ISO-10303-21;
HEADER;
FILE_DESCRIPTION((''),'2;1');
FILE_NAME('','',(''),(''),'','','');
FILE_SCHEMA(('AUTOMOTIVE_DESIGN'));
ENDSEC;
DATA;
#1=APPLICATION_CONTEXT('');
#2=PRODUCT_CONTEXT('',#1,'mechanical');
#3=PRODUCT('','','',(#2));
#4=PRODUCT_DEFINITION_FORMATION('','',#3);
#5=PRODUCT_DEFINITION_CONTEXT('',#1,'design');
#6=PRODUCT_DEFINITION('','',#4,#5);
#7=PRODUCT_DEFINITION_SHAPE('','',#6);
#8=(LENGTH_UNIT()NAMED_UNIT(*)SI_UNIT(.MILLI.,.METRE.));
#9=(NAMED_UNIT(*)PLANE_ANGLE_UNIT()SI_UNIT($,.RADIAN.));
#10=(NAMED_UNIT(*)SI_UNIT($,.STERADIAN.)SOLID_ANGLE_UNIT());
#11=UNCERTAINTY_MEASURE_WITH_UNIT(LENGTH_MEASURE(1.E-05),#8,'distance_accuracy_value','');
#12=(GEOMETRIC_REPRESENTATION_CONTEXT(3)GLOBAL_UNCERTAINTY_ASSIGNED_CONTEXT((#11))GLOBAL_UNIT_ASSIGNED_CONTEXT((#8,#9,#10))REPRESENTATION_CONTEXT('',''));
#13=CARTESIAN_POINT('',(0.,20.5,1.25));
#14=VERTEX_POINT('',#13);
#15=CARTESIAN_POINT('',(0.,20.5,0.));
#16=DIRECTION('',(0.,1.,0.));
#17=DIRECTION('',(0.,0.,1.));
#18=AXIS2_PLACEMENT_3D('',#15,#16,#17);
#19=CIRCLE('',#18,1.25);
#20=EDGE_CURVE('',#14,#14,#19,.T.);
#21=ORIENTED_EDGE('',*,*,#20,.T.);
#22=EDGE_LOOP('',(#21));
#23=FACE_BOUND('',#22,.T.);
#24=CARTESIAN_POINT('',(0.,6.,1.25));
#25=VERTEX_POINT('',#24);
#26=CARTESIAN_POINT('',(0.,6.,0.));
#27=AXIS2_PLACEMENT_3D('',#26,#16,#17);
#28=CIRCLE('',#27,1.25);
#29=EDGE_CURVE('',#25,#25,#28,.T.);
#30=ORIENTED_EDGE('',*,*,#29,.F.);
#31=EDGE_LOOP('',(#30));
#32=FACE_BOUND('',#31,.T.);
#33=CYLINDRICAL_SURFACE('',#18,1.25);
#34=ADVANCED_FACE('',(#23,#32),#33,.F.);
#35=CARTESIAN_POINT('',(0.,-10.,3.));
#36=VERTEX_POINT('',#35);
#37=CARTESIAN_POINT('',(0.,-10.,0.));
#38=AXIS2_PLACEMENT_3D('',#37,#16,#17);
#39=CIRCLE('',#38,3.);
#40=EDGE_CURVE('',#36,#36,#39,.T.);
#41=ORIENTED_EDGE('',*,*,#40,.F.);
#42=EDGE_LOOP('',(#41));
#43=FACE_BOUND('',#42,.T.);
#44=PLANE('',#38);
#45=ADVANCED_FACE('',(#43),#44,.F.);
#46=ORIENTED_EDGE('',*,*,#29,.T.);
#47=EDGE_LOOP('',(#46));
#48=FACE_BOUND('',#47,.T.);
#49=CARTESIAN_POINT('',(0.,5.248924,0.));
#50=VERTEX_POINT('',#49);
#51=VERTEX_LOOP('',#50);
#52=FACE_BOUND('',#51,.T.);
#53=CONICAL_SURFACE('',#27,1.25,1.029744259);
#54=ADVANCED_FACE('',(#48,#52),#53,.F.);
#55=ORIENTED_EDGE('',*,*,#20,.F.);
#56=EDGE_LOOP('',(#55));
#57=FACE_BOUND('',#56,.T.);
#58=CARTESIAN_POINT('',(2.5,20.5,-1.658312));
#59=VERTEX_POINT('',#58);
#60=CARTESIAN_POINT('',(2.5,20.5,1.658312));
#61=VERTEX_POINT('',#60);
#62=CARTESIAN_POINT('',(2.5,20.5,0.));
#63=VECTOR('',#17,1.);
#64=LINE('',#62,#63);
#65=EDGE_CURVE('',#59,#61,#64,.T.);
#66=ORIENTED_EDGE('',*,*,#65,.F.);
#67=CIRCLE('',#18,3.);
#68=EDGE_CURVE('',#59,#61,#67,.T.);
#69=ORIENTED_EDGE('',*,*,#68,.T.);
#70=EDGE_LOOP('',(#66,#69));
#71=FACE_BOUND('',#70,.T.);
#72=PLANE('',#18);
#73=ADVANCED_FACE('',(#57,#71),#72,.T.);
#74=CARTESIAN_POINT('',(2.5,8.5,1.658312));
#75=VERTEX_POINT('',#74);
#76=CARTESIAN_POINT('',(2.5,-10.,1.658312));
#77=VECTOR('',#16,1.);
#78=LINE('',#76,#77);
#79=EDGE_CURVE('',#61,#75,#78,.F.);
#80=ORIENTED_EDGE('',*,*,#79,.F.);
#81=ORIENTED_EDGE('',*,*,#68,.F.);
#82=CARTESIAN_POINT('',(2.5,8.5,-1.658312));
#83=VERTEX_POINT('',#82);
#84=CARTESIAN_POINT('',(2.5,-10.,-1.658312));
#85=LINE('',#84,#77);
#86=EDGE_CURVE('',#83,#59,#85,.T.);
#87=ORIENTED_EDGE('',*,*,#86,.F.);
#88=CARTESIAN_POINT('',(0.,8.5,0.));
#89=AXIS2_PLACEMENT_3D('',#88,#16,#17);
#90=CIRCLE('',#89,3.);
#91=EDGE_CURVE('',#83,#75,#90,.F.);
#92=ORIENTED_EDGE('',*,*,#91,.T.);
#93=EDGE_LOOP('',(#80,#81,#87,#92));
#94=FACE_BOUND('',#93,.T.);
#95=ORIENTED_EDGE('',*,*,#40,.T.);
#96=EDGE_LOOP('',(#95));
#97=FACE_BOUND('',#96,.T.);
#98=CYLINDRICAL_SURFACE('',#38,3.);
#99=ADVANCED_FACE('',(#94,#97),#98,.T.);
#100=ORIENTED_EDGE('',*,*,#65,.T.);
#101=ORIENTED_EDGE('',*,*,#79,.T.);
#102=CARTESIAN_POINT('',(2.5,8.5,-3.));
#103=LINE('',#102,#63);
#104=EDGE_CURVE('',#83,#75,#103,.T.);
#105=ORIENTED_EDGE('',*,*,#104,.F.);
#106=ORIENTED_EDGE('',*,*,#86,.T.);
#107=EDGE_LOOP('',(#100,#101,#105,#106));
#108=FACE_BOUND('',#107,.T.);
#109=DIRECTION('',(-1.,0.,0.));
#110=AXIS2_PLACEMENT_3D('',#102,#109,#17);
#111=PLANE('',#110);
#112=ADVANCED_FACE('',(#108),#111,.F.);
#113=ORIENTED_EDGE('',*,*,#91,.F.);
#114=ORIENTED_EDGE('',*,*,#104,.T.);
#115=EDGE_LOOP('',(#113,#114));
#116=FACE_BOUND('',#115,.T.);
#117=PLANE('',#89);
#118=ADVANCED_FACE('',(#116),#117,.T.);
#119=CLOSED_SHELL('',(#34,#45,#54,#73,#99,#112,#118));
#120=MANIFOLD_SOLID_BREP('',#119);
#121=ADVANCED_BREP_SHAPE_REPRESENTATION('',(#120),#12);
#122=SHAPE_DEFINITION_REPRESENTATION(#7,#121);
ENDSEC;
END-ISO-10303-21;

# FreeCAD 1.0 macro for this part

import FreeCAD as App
import Part
import Sketcher


def add_polygon(sketch, points):
    """Adds a closed chain of lines whose ends are joined by coincident constraints."""
    first, n = sketch.GeometryCount, len(points)
    for a, b in zip(points, points[1:] + points[:1]):
        sketch.addGeometry(Part.LineSegment(App.Vector(*a, 0), App.Vector(*b, 0)), False)
    for i in range(n):
        sketch.addConstraint(Sketcher.Constraint("Coincident", first + i, 2, first + (i + 1) % n, 1))

doc = App.newDocument("Part")
body = doc.addObject("PartDesign::Body", "Body")

# Sketch on XZ plane
sketch1 = body.newObject("Sketcher::SketchObject", "Sketch")
sketch1.AttachmentSupport = (doc.getObject("XZ_Plane"), [""])
sketch1.MapMode = "FlatFace"
sketch1.addGeometry(Part.Circle(App.Vector(0, 0, 0), App.Vector(0, 0, 1), 3), False)
sketch1.addConstraint(Sketcher.Constraint("Coincident", 0, 3, -1, 1))
sketch1.addConstraint(Sketcher.Constraint("Diameter", 0, 6.0))
pad1 = body.newObject("PartDesign::Pad", "Pad")
pad1.Profile = sketch1
pad1.Type = "TwoLengths"
pad1.Length = 20.5
pad1.Length2 = 10
pad1.Reversed = True

# Sketch on XZ plane
sketch2 = body.newObject("Sketcher::SketchObject", "Sketch001")
sketch2.AttachmentSupport = (doc.getObject("XZ_Plane"), [""])
sketch2.MapMode = "FlatFace"
sketch2.AttachmentOffset = App.Placement(App.Vector(0, 0, -20.5), App.Rotation())
add_polygon(sketch2, [(2.5, -3), (2.5, 3), (3, 3), (3, -3)])  # lines 0-3
sketch2.addConstraint(Sketcher.Constraint("Vertical", 0))
sketch2.addConstraint(Sketcher.Constraint("Horizontal", 1))
sketch2.addConstraint(Sketcher.Constraint("Vertical", 2))
sketch2.addConstraint(Sketcher.Constraint("Horizontal", 3))
sketch2.addConstraint(Sketcher.Constraint("DistanceY", 0, 1, 0, 2, 6.0))
sketch2.addConstraint(Sketcher.Constraint("DistanceX", 1, 1, 1, 2, 0.5))
sketch2.addConstraint(Sketcher.Constraint("DistanceY", -1, 1, 0, 2, 3.0))
sketch2.addConstraint(Sketcher.Constraint("DistanceX", -1, 1, 1, 2, 3.0))
pocket1 = body.newObject("PartDesign::Pocket", "Pocket")
pocket1.Profile = sketch2
pocket1.Length = 12
pocket1.Reversed = True

# Sketch on XZ plane
sketch3 = body.newObject("Sketcher::SketchObject", "Sketch002")
sketch3.AttachmentSupport = (doc.getObject("XZ_Plane"), [""])
sketch3.MapMode = "FlatFace"
sketch3.AttachmentOffset = App.Placement(App.Vector(0, 0, -20.5), App.Rotation())
sketch3.addGeometry(Part.Circle(App.Vector(0, 0, 0), App.Vector(0, 0, 1), 1.2), False)
sketch3.addConstraint(Sketcher.Constraint("Coincident", 0, 3, -1, 1))
sketch3.addConstraint(Sketcher.Constraint("Diameter", 0, 2.5))
doc.recompute()
hole = body.newObject("PartDesign::Hole", "Hole")
hole.Profile = sketch3
hole.ThreadType = "None"
hole.Diameter = 2.5
hole.DepthType = "Dimension"
hole.Depth = 14.5
hole.DrillPoint = "Angled"
hole.DrillPointAngle = 118
hole.Reversed = True

doc.recompute()
